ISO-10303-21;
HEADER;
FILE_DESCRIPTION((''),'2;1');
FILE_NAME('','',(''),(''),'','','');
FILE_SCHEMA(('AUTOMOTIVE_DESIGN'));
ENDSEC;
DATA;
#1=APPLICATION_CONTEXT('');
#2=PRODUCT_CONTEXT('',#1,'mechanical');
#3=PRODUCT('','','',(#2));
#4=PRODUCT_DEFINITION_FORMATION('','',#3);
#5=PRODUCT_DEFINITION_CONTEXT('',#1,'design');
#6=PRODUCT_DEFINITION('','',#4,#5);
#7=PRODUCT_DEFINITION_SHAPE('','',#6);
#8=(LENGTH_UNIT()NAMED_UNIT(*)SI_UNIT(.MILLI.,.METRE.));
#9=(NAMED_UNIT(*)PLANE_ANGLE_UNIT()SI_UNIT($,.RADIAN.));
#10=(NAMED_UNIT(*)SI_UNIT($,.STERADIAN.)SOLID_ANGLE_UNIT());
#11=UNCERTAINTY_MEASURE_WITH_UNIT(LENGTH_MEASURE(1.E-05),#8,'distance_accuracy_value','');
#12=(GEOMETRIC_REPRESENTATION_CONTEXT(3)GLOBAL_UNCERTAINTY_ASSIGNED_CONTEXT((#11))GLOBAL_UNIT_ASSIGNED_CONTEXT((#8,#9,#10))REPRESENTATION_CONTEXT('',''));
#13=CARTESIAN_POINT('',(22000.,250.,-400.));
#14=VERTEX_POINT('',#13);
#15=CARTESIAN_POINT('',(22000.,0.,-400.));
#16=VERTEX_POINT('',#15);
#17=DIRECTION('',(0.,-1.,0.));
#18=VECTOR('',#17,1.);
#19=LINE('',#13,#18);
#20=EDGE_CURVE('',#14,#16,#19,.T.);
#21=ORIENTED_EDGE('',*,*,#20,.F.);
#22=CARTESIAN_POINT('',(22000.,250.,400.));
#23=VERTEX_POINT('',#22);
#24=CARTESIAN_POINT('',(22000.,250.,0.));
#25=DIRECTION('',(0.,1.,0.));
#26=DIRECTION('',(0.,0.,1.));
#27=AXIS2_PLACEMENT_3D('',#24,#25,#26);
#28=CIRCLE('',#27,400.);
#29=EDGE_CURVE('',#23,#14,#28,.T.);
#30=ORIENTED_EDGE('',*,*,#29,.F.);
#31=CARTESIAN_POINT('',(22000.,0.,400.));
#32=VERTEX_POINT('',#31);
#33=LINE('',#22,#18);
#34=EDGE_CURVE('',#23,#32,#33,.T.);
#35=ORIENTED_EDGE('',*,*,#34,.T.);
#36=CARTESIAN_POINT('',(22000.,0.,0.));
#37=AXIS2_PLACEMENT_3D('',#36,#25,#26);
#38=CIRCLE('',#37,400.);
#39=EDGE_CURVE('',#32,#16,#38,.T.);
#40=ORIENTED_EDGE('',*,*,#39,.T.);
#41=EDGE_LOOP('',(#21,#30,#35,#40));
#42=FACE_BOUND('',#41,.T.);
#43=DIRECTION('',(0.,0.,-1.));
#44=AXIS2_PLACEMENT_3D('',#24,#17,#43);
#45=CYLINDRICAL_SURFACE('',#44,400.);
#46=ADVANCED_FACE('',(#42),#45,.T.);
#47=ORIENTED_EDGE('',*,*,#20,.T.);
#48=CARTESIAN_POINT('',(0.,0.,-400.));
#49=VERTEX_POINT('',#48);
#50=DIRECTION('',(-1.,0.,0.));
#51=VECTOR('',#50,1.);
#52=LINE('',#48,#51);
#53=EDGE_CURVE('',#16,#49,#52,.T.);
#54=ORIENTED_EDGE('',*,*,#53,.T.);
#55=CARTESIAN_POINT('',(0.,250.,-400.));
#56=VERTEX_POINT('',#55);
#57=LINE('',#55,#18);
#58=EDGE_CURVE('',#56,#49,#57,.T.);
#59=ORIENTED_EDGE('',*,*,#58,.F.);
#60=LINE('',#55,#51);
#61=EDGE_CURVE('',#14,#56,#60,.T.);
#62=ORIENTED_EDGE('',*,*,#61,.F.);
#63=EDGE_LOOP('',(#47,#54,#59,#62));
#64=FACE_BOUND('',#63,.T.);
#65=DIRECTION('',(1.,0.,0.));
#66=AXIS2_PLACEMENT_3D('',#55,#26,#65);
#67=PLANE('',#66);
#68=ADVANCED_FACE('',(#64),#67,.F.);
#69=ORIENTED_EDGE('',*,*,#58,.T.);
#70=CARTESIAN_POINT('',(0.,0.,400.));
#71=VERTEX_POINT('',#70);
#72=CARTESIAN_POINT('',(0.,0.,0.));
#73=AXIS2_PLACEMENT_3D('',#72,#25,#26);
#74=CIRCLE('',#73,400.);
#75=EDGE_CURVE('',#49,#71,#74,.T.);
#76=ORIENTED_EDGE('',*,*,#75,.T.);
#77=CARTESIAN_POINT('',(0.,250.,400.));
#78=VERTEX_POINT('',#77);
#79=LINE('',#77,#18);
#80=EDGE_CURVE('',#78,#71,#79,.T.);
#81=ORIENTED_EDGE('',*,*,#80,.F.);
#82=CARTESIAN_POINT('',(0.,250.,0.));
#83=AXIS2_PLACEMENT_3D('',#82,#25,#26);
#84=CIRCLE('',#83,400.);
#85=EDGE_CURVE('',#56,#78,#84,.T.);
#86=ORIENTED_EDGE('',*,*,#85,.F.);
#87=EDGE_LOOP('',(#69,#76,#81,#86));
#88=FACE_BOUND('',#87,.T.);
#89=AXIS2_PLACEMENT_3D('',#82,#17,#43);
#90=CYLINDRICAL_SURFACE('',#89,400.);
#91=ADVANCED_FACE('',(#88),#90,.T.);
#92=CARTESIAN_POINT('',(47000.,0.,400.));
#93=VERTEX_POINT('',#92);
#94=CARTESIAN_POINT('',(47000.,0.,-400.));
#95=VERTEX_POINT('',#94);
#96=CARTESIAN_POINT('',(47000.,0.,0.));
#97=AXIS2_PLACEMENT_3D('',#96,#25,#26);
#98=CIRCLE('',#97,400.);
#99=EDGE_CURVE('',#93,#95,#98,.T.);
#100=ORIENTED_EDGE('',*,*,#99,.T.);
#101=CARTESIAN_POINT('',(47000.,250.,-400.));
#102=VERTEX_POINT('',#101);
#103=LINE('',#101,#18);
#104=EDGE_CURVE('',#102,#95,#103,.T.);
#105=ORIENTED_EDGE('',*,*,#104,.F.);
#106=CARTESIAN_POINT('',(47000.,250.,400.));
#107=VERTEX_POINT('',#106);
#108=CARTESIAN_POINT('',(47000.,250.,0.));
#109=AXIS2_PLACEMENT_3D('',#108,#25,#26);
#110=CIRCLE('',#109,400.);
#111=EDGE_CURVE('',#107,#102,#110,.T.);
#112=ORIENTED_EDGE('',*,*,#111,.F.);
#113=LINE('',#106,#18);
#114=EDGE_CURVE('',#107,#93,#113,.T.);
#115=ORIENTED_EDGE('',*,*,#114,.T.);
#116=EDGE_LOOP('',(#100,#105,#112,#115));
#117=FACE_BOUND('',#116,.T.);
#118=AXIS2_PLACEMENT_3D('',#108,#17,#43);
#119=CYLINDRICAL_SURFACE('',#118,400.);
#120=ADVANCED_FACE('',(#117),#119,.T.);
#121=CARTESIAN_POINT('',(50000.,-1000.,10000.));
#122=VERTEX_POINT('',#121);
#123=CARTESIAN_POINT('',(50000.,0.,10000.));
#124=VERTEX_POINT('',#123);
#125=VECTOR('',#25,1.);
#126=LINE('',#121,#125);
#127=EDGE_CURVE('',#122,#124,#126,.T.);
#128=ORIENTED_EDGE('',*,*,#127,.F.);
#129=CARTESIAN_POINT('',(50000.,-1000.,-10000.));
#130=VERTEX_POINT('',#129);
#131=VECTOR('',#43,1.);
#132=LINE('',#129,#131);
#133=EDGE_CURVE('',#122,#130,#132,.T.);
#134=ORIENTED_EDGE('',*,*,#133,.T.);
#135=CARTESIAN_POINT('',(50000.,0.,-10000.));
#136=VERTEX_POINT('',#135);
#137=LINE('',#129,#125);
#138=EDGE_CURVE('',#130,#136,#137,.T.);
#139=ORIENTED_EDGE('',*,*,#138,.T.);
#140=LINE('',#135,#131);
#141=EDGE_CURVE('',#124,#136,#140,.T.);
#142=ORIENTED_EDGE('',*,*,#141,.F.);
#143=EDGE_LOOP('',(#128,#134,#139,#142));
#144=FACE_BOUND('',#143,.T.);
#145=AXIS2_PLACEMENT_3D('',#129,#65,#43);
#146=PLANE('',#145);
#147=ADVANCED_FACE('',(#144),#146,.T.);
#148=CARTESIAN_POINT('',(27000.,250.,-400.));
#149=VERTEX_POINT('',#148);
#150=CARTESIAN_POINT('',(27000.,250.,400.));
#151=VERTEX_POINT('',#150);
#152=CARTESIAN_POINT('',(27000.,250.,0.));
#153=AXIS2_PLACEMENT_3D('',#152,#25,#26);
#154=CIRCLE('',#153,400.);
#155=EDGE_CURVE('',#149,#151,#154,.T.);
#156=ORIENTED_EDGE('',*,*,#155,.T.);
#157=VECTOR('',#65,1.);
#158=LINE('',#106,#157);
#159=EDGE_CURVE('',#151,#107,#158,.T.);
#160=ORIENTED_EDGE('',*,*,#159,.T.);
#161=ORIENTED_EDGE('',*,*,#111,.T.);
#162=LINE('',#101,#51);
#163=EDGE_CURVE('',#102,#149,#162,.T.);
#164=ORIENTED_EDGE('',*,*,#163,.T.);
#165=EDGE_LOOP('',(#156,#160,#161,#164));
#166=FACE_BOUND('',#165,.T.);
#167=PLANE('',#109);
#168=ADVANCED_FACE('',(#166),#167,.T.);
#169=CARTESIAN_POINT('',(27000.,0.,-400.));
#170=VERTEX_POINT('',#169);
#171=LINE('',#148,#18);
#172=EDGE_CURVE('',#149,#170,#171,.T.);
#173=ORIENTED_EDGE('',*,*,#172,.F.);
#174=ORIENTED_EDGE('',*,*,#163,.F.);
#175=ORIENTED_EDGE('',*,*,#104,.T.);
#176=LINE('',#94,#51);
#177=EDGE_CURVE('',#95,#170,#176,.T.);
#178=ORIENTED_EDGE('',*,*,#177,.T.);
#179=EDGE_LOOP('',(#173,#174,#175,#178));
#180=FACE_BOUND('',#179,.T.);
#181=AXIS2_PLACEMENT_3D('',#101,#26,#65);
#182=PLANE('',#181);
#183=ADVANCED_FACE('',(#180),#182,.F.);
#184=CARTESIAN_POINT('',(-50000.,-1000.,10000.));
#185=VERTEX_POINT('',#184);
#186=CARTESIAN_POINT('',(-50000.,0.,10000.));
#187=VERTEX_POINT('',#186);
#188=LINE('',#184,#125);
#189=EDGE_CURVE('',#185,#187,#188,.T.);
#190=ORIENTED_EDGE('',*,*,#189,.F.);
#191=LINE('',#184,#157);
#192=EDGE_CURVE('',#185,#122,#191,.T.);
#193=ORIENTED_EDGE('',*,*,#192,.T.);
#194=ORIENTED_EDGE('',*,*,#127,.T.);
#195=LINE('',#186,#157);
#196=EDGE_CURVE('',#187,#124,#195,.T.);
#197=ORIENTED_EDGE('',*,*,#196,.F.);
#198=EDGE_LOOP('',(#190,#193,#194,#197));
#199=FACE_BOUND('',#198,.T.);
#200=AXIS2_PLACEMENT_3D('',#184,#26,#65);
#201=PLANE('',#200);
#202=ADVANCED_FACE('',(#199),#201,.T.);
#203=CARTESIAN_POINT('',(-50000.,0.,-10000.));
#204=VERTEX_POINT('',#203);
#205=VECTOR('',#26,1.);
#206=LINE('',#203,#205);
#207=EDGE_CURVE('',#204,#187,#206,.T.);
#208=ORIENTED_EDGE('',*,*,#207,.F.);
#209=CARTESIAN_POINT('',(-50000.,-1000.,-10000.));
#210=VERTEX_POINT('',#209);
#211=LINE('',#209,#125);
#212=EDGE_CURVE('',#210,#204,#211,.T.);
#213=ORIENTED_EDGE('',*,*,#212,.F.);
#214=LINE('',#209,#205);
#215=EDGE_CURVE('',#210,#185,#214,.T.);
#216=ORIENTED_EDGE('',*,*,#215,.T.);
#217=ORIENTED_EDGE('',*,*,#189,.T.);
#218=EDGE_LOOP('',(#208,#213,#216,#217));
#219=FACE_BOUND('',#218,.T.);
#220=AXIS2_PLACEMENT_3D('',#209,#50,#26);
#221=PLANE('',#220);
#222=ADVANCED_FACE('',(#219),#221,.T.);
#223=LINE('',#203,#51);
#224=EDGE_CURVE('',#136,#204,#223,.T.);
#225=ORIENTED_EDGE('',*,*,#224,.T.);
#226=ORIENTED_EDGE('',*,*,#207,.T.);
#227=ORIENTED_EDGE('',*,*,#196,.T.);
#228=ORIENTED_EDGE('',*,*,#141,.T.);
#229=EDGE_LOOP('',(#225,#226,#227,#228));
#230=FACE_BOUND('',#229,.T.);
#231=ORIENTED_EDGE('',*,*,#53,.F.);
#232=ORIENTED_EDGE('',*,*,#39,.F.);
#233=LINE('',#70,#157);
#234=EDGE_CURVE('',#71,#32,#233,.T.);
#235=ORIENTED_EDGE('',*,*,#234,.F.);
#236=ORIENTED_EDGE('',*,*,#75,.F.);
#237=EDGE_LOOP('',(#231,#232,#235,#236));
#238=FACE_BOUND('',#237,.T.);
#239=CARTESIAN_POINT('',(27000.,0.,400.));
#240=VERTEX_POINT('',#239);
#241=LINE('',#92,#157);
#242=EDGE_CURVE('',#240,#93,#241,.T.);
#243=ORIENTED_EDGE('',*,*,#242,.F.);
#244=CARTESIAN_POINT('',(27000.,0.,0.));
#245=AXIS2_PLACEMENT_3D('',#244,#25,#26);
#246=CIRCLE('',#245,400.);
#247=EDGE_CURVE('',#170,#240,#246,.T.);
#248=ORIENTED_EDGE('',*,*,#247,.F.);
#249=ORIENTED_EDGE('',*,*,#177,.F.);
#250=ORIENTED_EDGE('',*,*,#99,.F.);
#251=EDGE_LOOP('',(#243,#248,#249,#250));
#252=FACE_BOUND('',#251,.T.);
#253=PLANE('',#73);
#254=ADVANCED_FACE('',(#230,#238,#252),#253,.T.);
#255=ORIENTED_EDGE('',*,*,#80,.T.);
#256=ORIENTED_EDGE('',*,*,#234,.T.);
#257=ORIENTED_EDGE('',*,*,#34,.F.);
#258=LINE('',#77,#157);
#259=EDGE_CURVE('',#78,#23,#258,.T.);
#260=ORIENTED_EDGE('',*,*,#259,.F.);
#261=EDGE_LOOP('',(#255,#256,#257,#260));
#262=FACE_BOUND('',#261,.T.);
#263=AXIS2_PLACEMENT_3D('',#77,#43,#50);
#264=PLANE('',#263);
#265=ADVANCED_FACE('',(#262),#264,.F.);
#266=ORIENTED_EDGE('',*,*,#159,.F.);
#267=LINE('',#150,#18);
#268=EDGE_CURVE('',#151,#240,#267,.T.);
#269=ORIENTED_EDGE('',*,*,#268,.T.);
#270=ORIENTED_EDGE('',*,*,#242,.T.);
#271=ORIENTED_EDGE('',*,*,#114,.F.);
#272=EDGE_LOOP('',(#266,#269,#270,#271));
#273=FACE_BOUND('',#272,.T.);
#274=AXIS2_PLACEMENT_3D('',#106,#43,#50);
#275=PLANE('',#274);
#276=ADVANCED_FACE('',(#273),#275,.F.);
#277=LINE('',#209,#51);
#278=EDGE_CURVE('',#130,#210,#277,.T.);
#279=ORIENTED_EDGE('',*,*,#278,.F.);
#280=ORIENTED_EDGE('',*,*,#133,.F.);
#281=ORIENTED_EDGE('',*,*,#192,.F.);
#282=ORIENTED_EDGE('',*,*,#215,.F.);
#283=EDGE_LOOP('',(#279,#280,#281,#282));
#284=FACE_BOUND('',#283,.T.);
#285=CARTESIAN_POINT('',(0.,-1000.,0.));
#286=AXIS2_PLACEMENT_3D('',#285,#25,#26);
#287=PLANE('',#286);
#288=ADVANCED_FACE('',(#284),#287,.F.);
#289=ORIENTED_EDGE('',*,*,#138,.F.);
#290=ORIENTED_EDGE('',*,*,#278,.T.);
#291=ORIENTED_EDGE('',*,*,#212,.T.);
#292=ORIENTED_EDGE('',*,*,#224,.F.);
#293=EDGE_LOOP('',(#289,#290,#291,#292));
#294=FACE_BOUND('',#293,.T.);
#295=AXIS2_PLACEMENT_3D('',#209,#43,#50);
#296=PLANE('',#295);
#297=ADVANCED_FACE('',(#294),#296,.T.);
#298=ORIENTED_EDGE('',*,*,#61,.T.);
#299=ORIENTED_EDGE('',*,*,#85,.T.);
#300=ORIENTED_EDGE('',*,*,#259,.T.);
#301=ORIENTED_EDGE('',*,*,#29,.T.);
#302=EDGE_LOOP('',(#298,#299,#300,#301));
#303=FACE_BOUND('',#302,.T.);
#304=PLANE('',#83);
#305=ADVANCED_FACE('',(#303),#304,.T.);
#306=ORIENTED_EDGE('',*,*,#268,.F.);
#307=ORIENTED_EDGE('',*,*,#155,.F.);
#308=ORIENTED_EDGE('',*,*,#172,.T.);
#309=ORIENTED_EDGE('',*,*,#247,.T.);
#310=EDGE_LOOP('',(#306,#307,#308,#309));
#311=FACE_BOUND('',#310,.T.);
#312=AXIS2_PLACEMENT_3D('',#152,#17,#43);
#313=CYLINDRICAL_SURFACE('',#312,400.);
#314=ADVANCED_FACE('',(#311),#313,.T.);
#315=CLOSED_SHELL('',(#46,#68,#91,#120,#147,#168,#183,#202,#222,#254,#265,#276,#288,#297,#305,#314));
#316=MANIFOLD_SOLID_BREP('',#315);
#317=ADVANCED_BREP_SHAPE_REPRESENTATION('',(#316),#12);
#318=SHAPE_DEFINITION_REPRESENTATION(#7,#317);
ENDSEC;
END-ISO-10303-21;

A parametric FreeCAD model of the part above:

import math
import FreeCAD as App
import Part
import Sketcher
Q = App.Units.Quantity


def add_polygon(sketch, points):
    """Adds a closed chain of lines whose ends are joined by coincident constraints."""
    first, n = sketch.GeometryCount, len(points)
    for a, b in zip(points, points[1:] + points[:1]):
        sketch.addGeometry(Part.LineSegment(App.Vector(*a, 0), App.Vector(*b, 0)), False)
    for i in range(n):
        sketch.addConstraint(Sketcher.Constraint("Coincident", first + i, 2, first + (i + 1) % n, 1))

doc = App.newDocument("Part")
body = doc.addObject("PartDesign::Body", "Body")

sketch1 = body.newObject("Sketcher::SketchObject", "Sketch")
sketch1.AttachmentSupport = (doc.getObject("XZ_Plane"), [""])
sketch1.MapMode = "FlatFace"
add_polygon(sketch1, [(-50000, -10000), (-50000, 10000), (50000, 10000), (50000, -10000)])
sketch1.addConstraint(Sketcher.Constraint("Vertical", 0))
sketch1.addConstraint(Sketcher.Constraint("Horizontal", 1))
sketch1.addConstraint(Sketcher.Constraint("Vertical", 2))
sketch1.addConstraint(Sketcher.Constraint("Horizontal", 3))
sketch1.addConstraint(Sketcher.Constraint("Symmetric", 0, 2, 2, 2, -1, 1))
sketch1.addConstraint(Sketcher.Constraint("DistanceX", 1, 1, 1, 2, Q("100000 mm")))
sketch1.addConstraint(Sketcher.Constraint("DistanceY", 0, 1, 0, 2, Q("20000 mm")))
pad1 = body.newObject("PartDesign::Pad", "Pad")
pad1.Profile = sketch1
pad1.Length = 1000

sketch2 = body.newObject("Sketcher::SketchObject", "Sketch001")
sketch2.AttachmentSupport = (doc.getObject("XZ_Plane"), [""])
sketch2.MapMode = "FlatFace"
sketch2.addGeometry(Part.LineSegment(App.Vector(27000, 400, 0), App.Vector(47000, 400, 0)), False)
sketch2.addGeometry(Part.ArcOfCircle(Part.Circle(App.Vector(47000, 0, 0), App.Vector(0, 0, 1), 400), math.radians(-90), math.radians(90)), False)
sketch2.addGeometry(Part.LineSegment(App.Vector(47000, -400, 0), App.Vector(27000, -400, 0)), False)
sketch2.addGeometry(Part.ArcOfCircle(Part.Circle(App.Vector(27000, 0, 0), App.Vector(0, 0, 1), 400), math.radians(90), math.radians(270)), False)
sketch2.addGeometry(Part.LineSegment(App.Vector(22000, -400, 0), App.Vector(0, -400, 0)), False)
sketch2.addGeometry(Part.ArcOfCircle(Part.Circle(App.Vector(0, 0, 0), App.Vector(0, 0, 1), 400), math.radians(90), math.radians(270)), False)
sketch2.addGeometry(Part.LineSegment(App.Vector(0, 400, 0), App.Vector(22000, 400, 0)), False)
sketch2.addGeometry(Part.ArcOfCircle(Part.Circle(App.Vector(22000, 0, 0), App.Vector(0, 0, 1), 400), math.radians(-90), math.radians(90)), False)
sketch2.addConstraint(Sketcher.Constraint("Tangent", 0, 2, 1, 2))
sketch2.addConstraint(Sketcher.Constraint("Tangent", 1, 1, 2, 1))
sketch2.addConstraint(Sketcher.Constraint("Tangent", 2, 2, 3, 2))
sketch2.addConstraint(Sketcher.Constraint("Tangent", 3, 1, 0, 1))
sketch2.addConstraint(Sketcher.Constraint("Tangent", 4, 2, 5, 2))
sketch2.addConstraint(Sketcher.Constraint("Tangent", 5, 1, 6, 1))
sketch2.addConstraint(Sketcher.Constraint("Tangent", 6, 2, 7, 2))
sketch2.addConstraint(Sketcher.Constraint("Tangent", 7, 1, 4, 1))
sketch2.addConstraint(Sketcher.Constraint("Horizontal", 0))
sketch2.addConstraint(Sketcher.Constraint("Horizontal", 2))
sketch2.addConstraint(Sketcher.Constraint("Horizontal", 4))
sketch2.addConstraint(Sketcher.Constraint("Horizontal", 6))
sketch2.addConstraint(Sketcher.Constraint("Coincident", 5, 3, -1, 1))
sketch2.addConstraint(Sketcher.Constraint("Equal", 3, 5))
sketch2.addConstraint(Sketcher.Constraint("PointOnObject", 1, 3, -1))
sketch2.addConstraint(Sketcher.Constraint("Radius", 1, Q("400 mm")))
sketch2.addConstraint(Sketcher.Constraint("DistanceX", 0, 1, 0, 2, Q("20000 mm")))
sketch2.addConstraint(Sketcher.Constraint("DistanceX", 4, 2, 4, 1, Q("22000 mm")))
sketch2.addConstraint(Sketcher.Constraint("DistanceX", -1, 1, 1, 3, Q("47000 mm")))
pad2 = body.newObject("PartDesign::Pad", "Pad001")
pad2.Profile = sketch2
pad2.Length = 250
pad2.Reversed = True

doc.recompute()
